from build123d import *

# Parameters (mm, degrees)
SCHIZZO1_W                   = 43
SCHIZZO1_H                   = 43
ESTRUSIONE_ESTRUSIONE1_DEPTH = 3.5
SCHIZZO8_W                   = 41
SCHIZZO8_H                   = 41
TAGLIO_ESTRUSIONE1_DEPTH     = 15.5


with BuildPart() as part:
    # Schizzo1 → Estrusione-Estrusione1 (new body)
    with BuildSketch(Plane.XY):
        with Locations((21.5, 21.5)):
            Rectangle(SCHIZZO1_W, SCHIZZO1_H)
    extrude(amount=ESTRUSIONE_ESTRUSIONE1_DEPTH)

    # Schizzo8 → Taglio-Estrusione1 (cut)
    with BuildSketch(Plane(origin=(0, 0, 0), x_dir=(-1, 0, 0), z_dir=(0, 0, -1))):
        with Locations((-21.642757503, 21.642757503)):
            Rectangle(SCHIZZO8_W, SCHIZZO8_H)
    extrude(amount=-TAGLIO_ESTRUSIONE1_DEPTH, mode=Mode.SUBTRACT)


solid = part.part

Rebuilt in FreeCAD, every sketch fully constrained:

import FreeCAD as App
import Part
import Sketcher

doc = App.newDocument("Part")
body = doc.addObject("PartDesign::Body", "Body")

# Sketch on XY plane
sketch1 = body.newObject("Sketcher::SketchObject", "Sketch")
sketch1.AttachmentSupport = (doc.getObject("XY_Plane"), [""])
sketch1.MapMode = "FlatFace"
sketch1.addGeometry(Part.LineSegment(App.Vector(0, 43, 0), App.Vector(0, 0, 0)), False)
sketch1.addGeometry(Part.LineSegment(App.Vector(0, 0, 0), App.Vector(43, 0, 0)), False)
sketch1.addGeometry(Part.LineSegment(App.Vector(43, 0, 0), App.Vector(43, 43, 0)), False)
sketch1.addGeometry(Part.LineSegment(App.Vector(43, 43, 0), App.Vector(0, 43, 0)), False)
sketch1.addConstraint(Sketcher.Constraint("Coincident", 0, 2, 1, 1))
sketch1.addConstraint(Sketcher.Constraint("Coincident", 1, 2, 2, 1))
sketch1.addConstraint(Sketcher.Constraint("Coincident", 2, 2, 3, 1))
sketch1.addConstraint(Sketcher.Constraint("Coincident", 3, 2, 0, 1))
sketch1.addConstraint(Sketcher.Constraint("Vertical", 0))
sketch1.addConstraint(Sketcher.Constraint("Horizontal", 1))
sketch1.addConstraint(Sketcher.Constraint("Vertical", 2))
sketch1.addConstraint(Sketcher.Constraint("Horizontal", 3))
sketch1.addConstraint(Sketcher.Constraint("Coincident", 0, 2, -1, 1))
sketch1.addConstraint(Sketcher.Constraint("Equal", 3, 0))
sketch1.addConstraint(Sketcher.Constraint("DistanceX", 1, 1, 1, 2, 43.0))
pad1 = body.newObject("PartDesign::Pad", "Pad")
pad1.Profile = sketch1
pad1.Length = 3.5

# Sketch on XY plane
sketch2 = body.newObject("Sketcher::SketchObject", "Sketch001")
sketch2.AttachmentSupport = (doc.getObject("XY_Plane"), [""])
sketch2.MapMode = "FlatFace"
sketch2.addGeometry(Part.LineSegment(App.Vector(42.142758, 42.142758, 0), App.Vector(42.142758, 1.142758, 0)), False)
sketch2.addGeometry(Part.LineSegment(App.Vector(42.142758, 1.142758, 0), App.Vector(1.142758, 1.142758, 0)), False)
sketch2.addGeometry(Part.LineSegment(App.Vector(1.142758, 1.142758, 0), App.Vector(1.142758, 42.142758, 0)), False)
sketch2.addGeometry(Part.LineSegment(App.Vector(1.142758, 42.142758, 0), App.Vector(42.142758, 42.142758, 0)), False)
sketch2.addConstraint(Sketcher.Constraint("Coincident", 0, 2, 1, 1))
sketch2.addConstraint(Sketcher.Constraint("Coincident", 1, 2, 2, 1))
sketch2.addConstraint(Sketcher.Constraint("Coincident", 2, 2, 3, 1))
sketch2.addConstraint(Sketcher.Constraint("Coincident", 3, 2, 0, 1))
sketch2.addConstraint(Sketcher.Constraint("Vertical", 0))
sketch2.addConstraint(Sketcher.Constraint("Horizontal", 1))
sketch2.addConstraint(Sketcher.Constraint("Vertical", 2))
sketch2.addConstraint(Sketcher.Constraint("Horizontal", 3))
sketch2.addConstraint(Sketcher.Constraint("Equal", 3, 0))
sketch2.addConstraint(Sketcher.Constraint("DistanceX", 1, 2, 1, 1, 41.0))
sketch2.addConstraint(Sketcher.Constraint("DistanceX", -1, 1, 0, 2, 42.142758))
sketch2.addConstraint(Sketcher.Constraint("DistanceY", -1, 1, 0, 2, 1.142758))
pocket1 = body.newObject("PartDesign::Pocket", "Pocket")
pocket1.Profile = sketch2
pocket1.Length = 15.5
pocket1.Reversed = True

doc.recompute()
